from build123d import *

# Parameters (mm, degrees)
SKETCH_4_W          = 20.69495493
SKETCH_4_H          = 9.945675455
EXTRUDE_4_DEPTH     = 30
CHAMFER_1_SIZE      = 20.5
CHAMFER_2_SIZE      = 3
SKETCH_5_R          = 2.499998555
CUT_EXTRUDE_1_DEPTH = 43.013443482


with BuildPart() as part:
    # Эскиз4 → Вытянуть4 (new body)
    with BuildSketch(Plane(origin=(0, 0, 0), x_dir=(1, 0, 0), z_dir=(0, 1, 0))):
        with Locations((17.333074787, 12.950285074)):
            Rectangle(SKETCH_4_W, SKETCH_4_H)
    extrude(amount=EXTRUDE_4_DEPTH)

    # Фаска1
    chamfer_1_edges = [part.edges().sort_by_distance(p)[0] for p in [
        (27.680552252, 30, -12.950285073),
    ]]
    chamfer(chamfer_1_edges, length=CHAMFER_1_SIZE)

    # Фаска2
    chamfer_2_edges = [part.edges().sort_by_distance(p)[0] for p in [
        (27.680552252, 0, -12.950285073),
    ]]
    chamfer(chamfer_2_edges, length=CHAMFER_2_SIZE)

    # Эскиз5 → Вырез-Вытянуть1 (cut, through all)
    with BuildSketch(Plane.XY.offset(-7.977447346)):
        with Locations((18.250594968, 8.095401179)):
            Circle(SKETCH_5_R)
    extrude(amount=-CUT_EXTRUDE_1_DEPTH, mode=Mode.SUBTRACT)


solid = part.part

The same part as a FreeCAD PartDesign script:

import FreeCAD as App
import Part
import Sketcher
from FreeCAD import Vector
Q = App.Units.Quantity


def edges_at(feature, points):
    """Names of the edges that pass closest to the given points."""
    edges = feature.Shape.Edges
    near = lambda p: min(range(len(edges)), key=lambda i: edges[i].distToShape(Part.Vertex(*p))[0])
    return sorted({f"Edge{near(p) + 1}" for p in points})

doc = App.newDocument("Part")
body = doc.addObject("PartDesign::Body", "Body")

# Sketch on XZ plane
sketch1 = body.newObject("Sketcher::SketchObject", "Sketch")
sketch1.AttachmentSupport = (doc.getObject("XZ_Plane"), [""])
sketch1.MapMode = "FlatFace"
sketch1.addGeometry(Part.LineSegment(Vector(7, -18, 0), Vector(7, -8, 0)), False)
sketch1.addGeometry(Part.LineSegment(Vector(7, -8, 0), Vector(28, -8, 0)), False)
sketch1.addGeometry(Part.LineSegment(Vector(28, -8, 0), Vector(28, -18, 0)), False)
sketch1.addGeometry(Part.LineSegment(Vector(28, -18, 0), Vector(7, -18, 0)), False)
sketch1.addConstraint(Sketcher.Constraint("Coincident", 0, 2, 1, 1))
sketch1.addConstraint(Sketcher.Constraint("Coincident", 1, 2, 2, 1))
sketch1.addConstraint(Sketcher.Constraint("Coincident", 2, 2, 3, 1))
sketch1.addConstraint(Sketcher.Constraint("Coincident", 3, 2, 0, 1))
sketch1.addConstraint(Sketcher.Constraint("Vertical", 0))
sketch1.addConstraint(Sketcher.Constraint("Horizontal", 1))
sketch1.addConstraint(Sketcher.Constraint("Vertical", 2))
sketch1.addConstraint(Sketcher.Constraint("Horizontal", 3))
sketch1.addConstraint(Sketcher.Constraint("DistanceX", 1, 1, 1, 2, Q("20.694955 mm")))
sketch1.addConstraint(Sketcher.Constraint("DistanceY", 0, 1, 0, 2, Q("9.945675 mm")))
sketch1.addConstraint(Sketcher.Constraint("DistanceX", -1, 1, 0, 2, Q("6.985597 mm")))
sketch1.addConstraint(Sketcher.Constraint("DistanceY", 0, 2, -1, 1, Q("7.977447 mm")))
pad1 = body.newObject("PartDesign::Pad", "Pad")
pad1.Profile = sketch1
pad1.Length = 30
pad1.Reversed = True
doc.recompute()

chamfer = body.newObject("PartDesign::Chamfer", "Chamfer")
chamfer.Base = (pad1, edges_at(pad1, [(27.681, 30, -12.95)]))
chamfer.Size = 20.5
doc.recompute()

chamfer2 = body.newObject("PartDesign::Chamfer", "Chamfer001")
chamfer2.Base = (chamfer, edges_at(chamfer, [(27.681, 0, -12.95)]))
chamfer2.Size = 3

# Sketch on XY plane
sketch2 = body.newObject("Sketcher::SketchObject", "Sketch001")
sketch2.AttachmentSupport = (doc.getObject("XY_Plane"), [""])
sketch2.MapMode = "FlatFace"
sketch2.AttachmentOffset = App.Placement(Vector(0, 0, -7.977447), App.Rotation())
sketch2.addGeometry(Part.Circle(Vector(18.3, 8.1, 0), Vector(0, 0, 1), 2.5), False)
sketch2.addConstraint(Sketcher.Constraint("Diameter", 0, Q("4.999997 mm")))
sketch2.addConstraint(Sketcher.Constraint("DistanceY", -1, 1, 0, 3, Q("8.095401 mm")))
sketch2.addConstraint(Sketcher.Constraint("DistanceX", -1, 1, 0, 3, Q("18.250595 mm")))
pocket1 = body.newObject("PartDesign::Pocket", "Pocket")
pocket1.Profile = sketch2
pocket1.Type = "ThroughAll"

doc.recompute()
